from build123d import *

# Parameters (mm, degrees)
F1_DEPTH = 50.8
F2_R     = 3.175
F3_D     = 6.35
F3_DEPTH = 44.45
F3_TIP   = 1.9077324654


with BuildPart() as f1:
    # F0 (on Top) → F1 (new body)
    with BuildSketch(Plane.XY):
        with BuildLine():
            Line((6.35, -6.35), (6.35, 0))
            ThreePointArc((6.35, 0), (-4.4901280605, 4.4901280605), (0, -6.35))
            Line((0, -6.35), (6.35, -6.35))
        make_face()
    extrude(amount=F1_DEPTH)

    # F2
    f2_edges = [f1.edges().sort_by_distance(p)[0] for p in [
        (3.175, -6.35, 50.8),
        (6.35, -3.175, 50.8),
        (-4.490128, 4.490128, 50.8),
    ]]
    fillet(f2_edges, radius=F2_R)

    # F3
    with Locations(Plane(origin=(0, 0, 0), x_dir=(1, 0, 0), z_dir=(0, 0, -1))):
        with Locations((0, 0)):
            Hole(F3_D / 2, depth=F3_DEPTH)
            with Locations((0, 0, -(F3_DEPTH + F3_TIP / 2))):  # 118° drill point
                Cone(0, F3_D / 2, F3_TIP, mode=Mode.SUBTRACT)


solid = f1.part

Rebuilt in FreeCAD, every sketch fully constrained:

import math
import FreeCAD as App
import Part
import Sketcher
Q = App.Units.Quantity


def edges_at(feature, points):
    """Names of the edges that pass closest to the given points."""
    edges = feature.Shape.Edges
    near = lambda p: min(range(len(edges)), key=lambda i: edges[i].distToShape(Part.Vertex(*p))[0])
    return sorted({f"Edge{near(p) + 1}" for p in points})

doc = App.newDocument("Part")
body = doc.addObject("PartDesign::Body", "Body")

# Sketch on XY plane
sketch1 = body.newObject("Sketcher::SketchObject", "Sketch")
sketch1.AttachmentSupport = (doc.getObject("XY_Plane"), [""])
sketch1.MapMode = "FlatFace"
sketch1.addGeometry([
    Part.LineSegment(App.Vector(6, -6, 0), App.Vector(6, 0, 0)),
    Part.ArcOfCircle(Part.Circle(App.Vector(0, 0, 0), App.Vector(0, 0, 1), 6), math.radians(0), math.radians(270)),
    Part.LineSegment(App.Vector(0, -6, 0), App.Vector(6, -6, 0)),
], False)
sketch1.addConstraint([
    Sketcher.Constraint("Tangent", 0, 2, 1, 1),
    Sketcher.Constraint("Tangent", 1, 2, 2, 1),
    Sketcher.Constraint("Coincident", 2, 2, 0, 1),
    Sketcher.Constraint("Vertical", 0),
    Sketcher.Constraint("Horizontal", 2),
    Sketcher.Constraint("Coincident", 1, 3, -1, 1),
    Sketcher.Constraint("Radius", 1, Q("0.25 in")),
])
pad1 = body.newObject("PartDesign::Pad", "Pad")
pad1.Profile = sketch1
pad1.Length = Q("2 in")
doc.recompute()

fillet = body.newObject("PartDesign::Fillet", "Fillet")
fillet.Base = (pad1, edges_at(pad1, [(3.175, -6.35, 50.8), (6.35, -3.175, 50.8), (-4.49, 4.49, 50.8)]))
fillet.Radius = Q("0.125 in")

# Sketch on XY plane
sketch2 = body.newObject("Sketcher::SketchObject", "Sketch001")
sketch2.AttachmentSupport = (doc.getObject("XY_Plane"), [""])
sketch2.MapMode = "FlatFace"
sketch2.addGeometry(Part.Circle(App.Vector(0, 0, 0), App.Vector(0, 0, 1), 3.2), False)
sketch2.addConstraint([
    Sketcher.Constraint("Coincident", 0, 3, -1, 1),
    Sketcher.Constraint("Diameter", 0, Q("0.25 in")),
])
doc.recompute()
hole = body.newObject("PartDesign::Hole", "Hole")
hole.Profile = sketch2
hole.ThreadType = "None"
hole.Diameter = Q("0.25 in")
hole.DepthType = "Dimension"
hole.Depth = Q("1.75 in")
hole.DrillPoint = "Angled"
hole.DrillPointAngle = 118
hole.Reversed = True

doc.recompute()
